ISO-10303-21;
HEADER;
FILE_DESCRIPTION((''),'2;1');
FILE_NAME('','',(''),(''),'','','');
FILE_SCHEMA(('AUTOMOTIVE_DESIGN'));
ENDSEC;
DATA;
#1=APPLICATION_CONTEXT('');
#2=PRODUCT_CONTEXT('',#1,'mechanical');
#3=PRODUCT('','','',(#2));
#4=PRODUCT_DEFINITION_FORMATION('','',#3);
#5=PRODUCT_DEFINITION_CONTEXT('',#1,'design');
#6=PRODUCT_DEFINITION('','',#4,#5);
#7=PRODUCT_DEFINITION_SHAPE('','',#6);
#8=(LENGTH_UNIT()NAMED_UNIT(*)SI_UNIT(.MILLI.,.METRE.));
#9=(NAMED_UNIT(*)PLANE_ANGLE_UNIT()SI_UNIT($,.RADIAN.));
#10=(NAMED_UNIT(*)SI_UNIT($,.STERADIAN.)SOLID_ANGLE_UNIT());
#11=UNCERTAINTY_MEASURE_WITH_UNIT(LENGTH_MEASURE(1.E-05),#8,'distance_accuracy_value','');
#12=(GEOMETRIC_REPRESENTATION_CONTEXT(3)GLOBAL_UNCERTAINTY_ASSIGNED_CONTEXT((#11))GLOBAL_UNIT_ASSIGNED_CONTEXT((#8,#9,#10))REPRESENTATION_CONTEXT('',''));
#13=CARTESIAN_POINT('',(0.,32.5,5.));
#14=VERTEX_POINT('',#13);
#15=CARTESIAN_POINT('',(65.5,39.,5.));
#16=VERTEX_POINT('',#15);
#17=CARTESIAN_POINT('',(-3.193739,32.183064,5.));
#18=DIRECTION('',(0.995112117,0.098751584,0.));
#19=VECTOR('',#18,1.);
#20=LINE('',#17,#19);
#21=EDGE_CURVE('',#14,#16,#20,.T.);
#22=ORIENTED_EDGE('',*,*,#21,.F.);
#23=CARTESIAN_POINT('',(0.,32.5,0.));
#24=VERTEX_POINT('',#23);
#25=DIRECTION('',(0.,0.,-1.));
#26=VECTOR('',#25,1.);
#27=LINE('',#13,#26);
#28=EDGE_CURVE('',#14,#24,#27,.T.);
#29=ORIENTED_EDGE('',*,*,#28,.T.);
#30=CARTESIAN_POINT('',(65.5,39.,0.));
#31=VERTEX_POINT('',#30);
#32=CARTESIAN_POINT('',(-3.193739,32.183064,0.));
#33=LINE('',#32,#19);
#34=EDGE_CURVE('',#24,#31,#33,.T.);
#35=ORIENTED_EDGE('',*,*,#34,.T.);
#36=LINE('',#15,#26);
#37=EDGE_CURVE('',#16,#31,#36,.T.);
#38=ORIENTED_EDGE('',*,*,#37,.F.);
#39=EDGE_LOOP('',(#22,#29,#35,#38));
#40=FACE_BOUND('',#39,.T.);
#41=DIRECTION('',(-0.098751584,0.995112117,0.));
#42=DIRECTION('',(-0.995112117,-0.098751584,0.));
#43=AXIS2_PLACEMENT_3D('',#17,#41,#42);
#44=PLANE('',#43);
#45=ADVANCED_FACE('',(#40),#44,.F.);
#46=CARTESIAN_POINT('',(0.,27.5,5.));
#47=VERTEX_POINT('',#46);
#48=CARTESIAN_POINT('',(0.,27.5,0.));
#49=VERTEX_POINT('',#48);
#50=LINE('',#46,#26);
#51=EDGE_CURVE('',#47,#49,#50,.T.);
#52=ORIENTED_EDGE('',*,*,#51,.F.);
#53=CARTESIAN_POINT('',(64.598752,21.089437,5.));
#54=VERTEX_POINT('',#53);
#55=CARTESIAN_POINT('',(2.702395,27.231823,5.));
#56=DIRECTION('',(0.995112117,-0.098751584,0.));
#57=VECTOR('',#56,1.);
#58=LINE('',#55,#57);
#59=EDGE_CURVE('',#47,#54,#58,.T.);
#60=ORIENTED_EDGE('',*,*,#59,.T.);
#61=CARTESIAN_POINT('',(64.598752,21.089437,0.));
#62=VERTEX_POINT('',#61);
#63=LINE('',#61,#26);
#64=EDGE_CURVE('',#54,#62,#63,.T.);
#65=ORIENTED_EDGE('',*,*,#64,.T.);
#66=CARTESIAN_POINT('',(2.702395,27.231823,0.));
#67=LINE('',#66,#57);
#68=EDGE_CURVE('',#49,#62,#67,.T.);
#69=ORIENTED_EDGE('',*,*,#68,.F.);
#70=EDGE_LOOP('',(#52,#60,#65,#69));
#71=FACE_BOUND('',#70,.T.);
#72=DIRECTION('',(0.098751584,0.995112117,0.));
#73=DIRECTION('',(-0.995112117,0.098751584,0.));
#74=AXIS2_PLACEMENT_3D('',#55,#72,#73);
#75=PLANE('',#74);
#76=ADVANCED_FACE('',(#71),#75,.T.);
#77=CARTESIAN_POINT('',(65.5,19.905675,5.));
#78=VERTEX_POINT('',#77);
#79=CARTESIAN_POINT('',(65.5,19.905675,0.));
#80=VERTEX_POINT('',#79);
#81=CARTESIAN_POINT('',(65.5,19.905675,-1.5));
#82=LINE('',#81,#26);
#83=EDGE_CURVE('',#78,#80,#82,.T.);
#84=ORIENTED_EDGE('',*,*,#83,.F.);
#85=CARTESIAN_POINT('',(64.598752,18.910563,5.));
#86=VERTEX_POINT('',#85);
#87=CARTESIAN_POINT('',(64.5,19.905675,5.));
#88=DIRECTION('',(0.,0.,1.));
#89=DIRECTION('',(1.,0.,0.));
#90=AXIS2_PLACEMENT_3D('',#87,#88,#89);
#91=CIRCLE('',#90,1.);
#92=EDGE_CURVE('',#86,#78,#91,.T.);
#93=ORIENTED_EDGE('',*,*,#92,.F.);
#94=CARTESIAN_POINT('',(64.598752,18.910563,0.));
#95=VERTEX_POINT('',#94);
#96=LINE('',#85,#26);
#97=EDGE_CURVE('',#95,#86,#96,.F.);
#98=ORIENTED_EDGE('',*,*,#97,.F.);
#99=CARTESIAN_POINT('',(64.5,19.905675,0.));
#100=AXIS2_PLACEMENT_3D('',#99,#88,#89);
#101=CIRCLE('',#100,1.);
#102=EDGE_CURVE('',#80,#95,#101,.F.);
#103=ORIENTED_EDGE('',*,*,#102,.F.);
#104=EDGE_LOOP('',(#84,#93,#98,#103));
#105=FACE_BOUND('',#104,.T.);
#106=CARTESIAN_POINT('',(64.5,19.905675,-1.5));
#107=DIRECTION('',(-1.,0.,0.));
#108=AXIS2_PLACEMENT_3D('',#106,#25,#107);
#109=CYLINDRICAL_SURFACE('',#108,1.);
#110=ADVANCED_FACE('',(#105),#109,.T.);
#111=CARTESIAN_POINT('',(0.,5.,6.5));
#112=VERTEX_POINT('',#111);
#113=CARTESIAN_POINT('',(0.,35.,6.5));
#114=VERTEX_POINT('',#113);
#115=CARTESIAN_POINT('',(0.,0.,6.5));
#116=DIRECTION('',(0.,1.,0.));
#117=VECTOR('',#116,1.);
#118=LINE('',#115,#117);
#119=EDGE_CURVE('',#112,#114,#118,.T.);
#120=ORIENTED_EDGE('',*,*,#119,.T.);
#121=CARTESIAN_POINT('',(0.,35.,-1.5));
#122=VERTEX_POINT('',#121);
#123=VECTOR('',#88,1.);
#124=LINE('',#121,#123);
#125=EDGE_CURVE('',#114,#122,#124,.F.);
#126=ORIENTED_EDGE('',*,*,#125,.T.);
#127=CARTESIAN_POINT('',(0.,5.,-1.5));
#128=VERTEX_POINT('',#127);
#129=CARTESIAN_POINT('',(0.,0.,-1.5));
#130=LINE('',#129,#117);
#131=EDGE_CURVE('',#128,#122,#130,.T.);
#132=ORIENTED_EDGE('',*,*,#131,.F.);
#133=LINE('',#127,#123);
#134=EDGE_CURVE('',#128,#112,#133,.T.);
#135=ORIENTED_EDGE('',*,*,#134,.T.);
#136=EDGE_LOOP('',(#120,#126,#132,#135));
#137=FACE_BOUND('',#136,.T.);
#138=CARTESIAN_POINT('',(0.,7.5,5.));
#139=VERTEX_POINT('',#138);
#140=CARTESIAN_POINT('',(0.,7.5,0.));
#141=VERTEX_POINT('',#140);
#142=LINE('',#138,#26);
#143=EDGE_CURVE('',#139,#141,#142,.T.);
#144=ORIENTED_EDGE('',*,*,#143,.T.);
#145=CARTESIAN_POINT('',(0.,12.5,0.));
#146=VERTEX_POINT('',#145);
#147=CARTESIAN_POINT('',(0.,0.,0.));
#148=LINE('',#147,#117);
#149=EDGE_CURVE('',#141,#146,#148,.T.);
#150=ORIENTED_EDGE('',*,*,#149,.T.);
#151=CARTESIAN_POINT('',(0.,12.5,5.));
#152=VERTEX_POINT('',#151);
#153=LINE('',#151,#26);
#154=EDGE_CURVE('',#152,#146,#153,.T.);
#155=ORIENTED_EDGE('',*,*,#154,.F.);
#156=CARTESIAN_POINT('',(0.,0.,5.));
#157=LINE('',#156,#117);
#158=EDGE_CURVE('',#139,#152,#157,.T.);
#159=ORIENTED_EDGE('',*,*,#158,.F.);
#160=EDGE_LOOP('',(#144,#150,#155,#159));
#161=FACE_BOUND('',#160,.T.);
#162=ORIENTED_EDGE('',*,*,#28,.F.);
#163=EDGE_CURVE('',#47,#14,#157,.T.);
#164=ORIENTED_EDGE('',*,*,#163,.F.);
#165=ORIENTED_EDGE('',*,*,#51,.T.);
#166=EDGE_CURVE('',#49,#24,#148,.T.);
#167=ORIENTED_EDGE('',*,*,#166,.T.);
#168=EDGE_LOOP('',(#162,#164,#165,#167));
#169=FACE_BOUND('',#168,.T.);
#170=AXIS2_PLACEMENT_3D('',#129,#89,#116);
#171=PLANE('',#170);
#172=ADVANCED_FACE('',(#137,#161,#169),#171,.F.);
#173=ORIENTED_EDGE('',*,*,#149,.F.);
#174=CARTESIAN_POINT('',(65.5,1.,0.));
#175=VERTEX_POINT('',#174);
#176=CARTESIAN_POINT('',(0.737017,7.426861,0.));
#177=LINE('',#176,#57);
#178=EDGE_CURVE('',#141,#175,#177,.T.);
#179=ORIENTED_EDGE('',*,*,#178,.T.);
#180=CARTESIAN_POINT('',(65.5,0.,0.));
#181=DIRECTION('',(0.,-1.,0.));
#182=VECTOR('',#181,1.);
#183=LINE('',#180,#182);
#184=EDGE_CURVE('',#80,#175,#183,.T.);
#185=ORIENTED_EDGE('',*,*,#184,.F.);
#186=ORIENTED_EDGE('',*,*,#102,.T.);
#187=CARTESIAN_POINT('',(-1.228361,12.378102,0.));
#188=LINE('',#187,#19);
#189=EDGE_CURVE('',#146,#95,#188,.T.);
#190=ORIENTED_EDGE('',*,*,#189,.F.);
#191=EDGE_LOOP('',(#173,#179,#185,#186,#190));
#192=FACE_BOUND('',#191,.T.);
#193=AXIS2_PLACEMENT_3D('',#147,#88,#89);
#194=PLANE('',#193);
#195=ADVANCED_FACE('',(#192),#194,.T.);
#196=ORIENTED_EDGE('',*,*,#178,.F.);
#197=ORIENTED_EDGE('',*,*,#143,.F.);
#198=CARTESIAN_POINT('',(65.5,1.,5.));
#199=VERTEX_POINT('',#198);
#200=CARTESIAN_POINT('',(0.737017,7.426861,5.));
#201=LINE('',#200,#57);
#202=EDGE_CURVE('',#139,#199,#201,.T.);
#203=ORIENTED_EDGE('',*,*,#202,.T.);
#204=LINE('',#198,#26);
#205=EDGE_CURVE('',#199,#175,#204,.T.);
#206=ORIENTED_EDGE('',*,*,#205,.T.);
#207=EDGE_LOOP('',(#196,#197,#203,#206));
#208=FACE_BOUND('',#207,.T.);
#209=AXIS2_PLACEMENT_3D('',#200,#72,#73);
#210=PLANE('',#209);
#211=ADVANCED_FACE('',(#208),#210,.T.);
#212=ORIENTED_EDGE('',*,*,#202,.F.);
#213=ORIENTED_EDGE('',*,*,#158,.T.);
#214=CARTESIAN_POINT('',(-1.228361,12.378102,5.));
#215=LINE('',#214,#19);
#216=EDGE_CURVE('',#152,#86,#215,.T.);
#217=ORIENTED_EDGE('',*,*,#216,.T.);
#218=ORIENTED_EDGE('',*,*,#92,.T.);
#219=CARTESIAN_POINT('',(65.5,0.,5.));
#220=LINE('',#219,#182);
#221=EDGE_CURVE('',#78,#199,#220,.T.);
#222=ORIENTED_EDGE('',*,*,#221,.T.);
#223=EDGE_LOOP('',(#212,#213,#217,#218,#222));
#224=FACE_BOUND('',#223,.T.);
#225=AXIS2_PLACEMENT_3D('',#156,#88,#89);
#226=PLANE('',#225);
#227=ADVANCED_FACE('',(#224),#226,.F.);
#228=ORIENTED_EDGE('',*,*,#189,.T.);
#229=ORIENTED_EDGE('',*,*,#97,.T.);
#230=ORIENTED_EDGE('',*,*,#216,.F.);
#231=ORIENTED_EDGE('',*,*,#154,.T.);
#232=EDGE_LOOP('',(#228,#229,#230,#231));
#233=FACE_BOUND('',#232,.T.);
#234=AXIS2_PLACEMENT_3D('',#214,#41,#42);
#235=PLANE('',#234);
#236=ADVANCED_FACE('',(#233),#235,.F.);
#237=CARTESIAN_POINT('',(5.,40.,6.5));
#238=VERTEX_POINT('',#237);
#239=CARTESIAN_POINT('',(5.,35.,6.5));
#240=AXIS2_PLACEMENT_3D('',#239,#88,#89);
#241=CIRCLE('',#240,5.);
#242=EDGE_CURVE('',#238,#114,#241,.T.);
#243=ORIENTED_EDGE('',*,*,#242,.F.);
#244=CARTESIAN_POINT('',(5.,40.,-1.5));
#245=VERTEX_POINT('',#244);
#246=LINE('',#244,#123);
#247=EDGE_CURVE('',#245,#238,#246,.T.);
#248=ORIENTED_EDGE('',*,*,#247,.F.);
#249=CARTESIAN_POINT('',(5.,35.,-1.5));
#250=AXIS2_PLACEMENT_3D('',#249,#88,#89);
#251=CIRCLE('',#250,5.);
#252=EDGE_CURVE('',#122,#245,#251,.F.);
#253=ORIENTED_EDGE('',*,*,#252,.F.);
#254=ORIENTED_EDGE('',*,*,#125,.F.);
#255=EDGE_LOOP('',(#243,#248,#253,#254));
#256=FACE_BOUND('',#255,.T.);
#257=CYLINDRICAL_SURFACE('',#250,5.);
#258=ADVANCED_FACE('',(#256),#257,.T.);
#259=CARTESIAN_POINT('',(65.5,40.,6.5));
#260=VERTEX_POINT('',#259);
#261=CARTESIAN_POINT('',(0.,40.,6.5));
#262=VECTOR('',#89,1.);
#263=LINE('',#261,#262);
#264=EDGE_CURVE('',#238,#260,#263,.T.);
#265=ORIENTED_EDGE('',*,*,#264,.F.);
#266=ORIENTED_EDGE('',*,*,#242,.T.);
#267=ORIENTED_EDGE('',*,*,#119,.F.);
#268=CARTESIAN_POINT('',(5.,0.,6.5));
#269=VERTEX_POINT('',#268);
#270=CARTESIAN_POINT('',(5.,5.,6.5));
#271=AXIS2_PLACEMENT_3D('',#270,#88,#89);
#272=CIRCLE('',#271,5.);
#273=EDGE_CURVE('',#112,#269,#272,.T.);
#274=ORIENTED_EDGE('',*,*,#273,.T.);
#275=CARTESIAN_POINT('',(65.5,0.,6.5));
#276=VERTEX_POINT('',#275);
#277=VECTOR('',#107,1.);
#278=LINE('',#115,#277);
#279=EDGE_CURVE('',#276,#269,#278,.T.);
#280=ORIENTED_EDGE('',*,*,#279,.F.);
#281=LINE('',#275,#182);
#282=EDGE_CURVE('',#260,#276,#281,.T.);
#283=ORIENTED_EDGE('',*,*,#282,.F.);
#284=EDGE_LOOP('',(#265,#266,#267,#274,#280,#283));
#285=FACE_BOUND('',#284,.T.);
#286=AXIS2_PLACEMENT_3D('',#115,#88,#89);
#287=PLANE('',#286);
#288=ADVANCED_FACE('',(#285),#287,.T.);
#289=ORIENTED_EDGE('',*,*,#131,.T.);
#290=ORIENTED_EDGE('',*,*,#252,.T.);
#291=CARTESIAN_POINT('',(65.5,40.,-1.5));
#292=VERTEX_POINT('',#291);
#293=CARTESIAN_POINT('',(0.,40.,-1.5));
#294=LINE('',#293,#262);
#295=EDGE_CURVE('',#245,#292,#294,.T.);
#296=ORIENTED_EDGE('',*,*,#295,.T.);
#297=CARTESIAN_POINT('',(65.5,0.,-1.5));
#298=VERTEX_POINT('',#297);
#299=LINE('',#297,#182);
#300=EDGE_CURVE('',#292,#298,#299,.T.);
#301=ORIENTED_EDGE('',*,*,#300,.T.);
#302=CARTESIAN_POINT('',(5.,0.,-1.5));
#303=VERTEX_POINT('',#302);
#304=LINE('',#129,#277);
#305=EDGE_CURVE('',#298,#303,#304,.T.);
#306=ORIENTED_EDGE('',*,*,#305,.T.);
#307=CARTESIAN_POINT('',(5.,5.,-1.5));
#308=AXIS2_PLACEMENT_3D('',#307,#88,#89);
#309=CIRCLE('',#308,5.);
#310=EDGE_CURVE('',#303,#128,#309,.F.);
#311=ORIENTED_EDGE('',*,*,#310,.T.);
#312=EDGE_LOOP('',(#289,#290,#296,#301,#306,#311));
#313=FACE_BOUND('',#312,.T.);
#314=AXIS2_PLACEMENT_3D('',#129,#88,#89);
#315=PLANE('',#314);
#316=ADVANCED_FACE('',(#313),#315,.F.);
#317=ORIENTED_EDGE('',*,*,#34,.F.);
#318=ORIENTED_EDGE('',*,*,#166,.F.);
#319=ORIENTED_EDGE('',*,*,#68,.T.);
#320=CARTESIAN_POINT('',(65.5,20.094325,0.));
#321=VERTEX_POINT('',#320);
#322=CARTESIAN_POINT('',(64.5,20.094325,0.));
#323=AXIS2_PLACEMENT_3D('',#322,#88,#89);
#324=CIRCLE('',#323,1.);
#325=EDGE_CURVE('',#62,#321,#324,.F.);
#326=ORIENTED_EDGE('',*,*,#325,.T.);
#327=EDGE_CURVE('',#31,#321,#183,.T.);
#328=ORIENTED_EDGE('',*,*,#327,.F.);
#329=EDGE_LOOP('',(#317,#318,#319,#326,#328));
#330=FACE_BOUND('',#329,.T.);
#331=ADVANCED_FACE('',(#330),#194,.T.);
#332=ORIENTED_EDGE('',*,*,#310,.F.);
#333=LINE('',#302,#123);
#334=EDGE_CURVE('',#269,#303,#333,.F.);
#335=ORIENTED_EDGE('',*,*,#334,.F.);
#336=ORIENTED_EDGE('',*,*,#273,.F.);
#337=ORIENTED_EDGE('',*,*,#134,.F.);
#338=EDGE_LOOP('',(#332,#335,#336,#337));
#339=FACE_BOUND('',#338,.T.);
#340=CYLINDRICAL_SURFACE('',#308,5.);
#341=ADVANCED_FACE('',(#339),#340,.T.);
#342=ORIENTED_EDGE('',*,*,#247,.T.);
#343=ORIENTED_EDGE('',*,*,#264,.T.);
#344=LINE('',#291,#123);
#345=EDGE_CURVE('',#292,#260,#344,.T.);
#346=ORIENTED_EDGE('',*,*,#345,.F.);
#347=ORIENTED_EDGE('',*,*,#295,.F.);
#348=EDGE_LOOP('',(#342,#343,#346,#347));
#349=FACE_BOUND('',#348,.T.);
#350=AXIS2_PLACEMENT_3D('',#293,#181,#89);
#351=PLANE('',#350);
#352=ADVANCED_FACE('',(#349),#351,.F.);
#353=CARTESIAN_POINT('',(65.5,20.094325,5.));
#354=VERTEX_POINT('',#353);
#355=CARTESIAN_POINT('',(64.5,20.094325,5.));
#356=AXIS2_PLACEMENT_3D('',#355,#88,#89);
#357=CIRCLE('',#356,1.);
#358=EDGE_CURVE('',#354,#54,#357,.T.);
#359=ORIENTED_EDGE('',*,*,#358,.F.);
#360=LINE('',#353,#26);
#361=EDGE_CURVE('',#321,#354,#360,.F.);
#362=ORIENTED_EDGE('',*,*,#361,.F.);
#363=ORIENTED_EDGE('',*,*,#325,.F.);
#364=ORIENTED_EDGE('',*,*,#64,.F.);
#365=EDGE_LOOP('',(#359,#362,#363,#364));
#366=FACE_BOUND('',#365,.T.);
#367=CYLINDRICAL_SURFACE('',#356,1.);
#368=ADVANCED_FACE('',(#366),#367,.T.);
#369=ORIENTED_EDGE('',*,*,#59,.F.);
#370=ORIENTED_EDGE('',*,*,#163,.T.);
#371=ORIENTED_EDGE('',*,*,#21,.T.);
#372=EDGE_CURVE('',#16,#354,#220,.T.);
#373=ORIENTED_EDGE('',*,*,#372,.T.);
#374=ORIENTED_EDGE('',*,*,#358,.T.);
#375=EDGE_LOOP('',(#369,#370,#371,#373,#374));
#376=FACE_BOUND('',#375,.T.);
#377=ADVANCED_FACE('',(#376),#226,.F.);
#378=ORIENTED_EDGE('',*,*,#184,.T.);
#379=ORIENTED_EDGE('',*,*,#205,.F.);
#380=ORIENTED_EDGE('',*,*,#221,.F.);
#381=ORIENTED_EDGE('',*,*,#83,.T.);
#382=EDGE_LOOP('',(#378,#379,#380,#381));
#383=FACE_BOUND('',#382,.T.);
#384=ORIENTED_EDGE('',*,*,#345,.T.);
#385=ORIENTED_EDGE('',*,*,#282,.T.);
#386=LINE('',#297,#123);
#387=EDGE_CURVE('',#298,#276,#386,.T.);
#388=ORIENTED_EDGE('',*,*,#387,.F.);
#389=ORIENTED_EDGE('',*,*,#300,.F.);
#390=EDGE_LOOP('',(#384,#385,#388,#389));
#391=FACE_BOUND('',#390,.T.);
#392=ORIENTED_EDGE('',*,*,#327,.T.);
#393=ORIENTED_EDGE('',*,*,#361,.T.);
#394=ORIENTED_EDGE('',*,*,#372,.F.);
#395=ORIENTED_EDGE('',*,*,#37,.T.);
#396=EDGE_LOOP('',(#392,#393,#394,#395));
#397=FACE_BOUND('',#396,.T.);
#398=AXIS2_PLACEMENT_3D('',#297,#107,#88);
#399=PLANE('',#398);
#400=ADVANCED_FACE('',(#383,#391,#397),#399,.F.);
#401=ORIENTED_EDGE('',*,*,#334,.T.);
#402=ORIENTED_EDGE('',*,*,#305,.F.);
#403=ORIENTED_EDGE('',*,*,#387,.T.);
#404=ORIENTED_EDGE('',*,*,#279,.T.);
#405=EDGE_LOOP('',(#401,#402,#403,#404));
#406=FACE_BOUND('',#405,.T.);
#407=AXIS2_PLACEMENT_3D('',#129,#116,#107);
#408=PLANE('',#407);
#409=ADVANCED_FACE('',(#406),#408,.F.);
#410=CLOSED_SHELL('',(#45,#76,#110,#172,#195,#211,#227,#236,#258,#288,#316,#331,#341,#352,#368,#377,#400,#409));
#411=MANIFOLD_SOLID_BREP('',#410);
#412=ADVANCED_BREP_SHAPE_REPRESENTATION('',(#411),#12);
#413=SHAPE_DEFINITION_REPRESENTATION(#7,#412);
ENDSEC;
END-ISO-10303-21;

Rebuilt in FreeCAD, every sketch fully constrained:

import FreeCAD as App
import Part
import Sketcher
from FreeCAD import Vector
Q = App.Units.Quantity


def edges_at(feature, points):
    """Names of the edges that pass closest to the given points."""
    edges = feature.Shape.Edges
    near = lambda p: min(range(len(edges)), key=lambda i: edges[i].distToShape(Part.Vertex(*p))[0])
    return sorted({f"Edge{near(p) + 1}" for p in points})


def add_polygon(sketch, points):
    """Adds a closed chain of lines whose ends are joined by coincident constraints."""
    first, n = sketch.GeometryCount, len(points)
    for a, b in zip(points, points[1:] + points[:1]):
        sketch.addGeometry(Part.LineSegment(App.Vector(*a, 0), App.Vector(*b, 0)), False)
    for i in range(n):
        sketch.addConstraint(Sketcher.Constraint("Coincident", first + i, 2, first + (i + 1) % n, 1))

doc = App.newDocument("Part")
params = doc.addObject("Spreadsheet::Sheet", "Params")
for row, (alias, value) in enumerate([
    ("sketch1_height", "40 mm"),
    ("sketch1_width", "65.5 mm"),
    ("pad1_length", "1.5 mm"),
    ("sketch2_height", "1 mm"),
    ("sketch2_height2", "15 mm"),
    ("sketch2_height3", "2 mm"),
    ("sketch2_width", "65.5 mm"),
    ("pad2_length", "5 mm"),
    ("sketch3_height", "40 mm"),
    ("sketch3_width", "65.5 mm"),
    ("pad3_length", "1.5 mm"),
    ("fillet_radius", "5 mm"),
    ("fillet2_radius", "1 mm"),
], start=1):
    params.set(f"A{row}", alias)
    params.set(f"B{row}", "=" + value)
    params.setAlias(f"B{row}", alias)

body = doc.addObject("PartDesign::Body", "Body")

# Sketch on XY plane
sketch1 = body.newObject("Sketcher::SketchObject", "Sketch")
sketch1.AttachmentSupport = (doc.getObject("XY_Plane"), [""])
sketch1.MapMode = "FlatFace"
add_polygon(sketch1, [(0, 40), (0, 0), (66, 0), (66, 40)])  # lines 0-3
sketch1.addConstraint([
    Sketcher.Constraint("Vertical", 0),
    Sketcher.Constraint("Horizontal", 1),
    Sketcher.Constraint("Vertical", 2),
    Sketcher.Constraint("Horizontal", 3),
    Sketcher.Constraint("Coincident", 0, 2, -1, 1),
    Sketcher.Constraint("DistanceY", 0, 2, 0, 1, Q("40 mm")),
    Sketcher.Constraint("DistanceX", 1, 1, 1, 2, Q("65.5 mm")),
])
sketch1.setExpression("Constraints[9]", "Params.sketch1_height")
sketch1.setExpression("Constraints[10]", "Params.sketch1_width")
pad1 = body.newObject("PartDesign::Pad", "Pad")
pad1.Profile = sketch1
pad1.setExpression("Length", "Params.pad1_length")
pad1.Reversed = True

# Sketch on XY plane
sketch2 = body.newObject("Sketcher::SketchObject", "Sketch001")
sketch2.AttachmentSupport = (doc.getObject("XY_Plane"), [""])
sketch2.MapMode = "FlatFace"
add_polygon(sketch2, [(0, 40), (0, 32.5), (65.5, 39), (65.5, 40)])  # lines 0-3
add_polygon(sketch2, [(0, 27.5), (0, 12.5), (65.5, 19), (65.5, 21)])  # lines 4-7
add_polygon(sketch2, [(0, 7.5), (0, 0), (65.5, 0), (65.5, 1)])  # lines 8-11
sketch2.addConstraint([
    Sketcher.Constraint("Vertical", 0),
    Sketcher.Constraint("Vertical", 2),
    Sketcher.Constraint("Horizontal", 3),
    Sketcher.Constraint("Vertical", 4),
    Sketcher.Constraint("Vertical", 6),
    Sketcher.Constraint("Vertical", 8),
    Sketcher.Constraint("Horizontal", 9),
    Sketcher.Constraint("Vertical", 10),
    Sketcher.Constraint("Coincident", 8, 2, -1, 1),
    Sketcher.Constraint("PointOnObject", 0, 2, -2),
    Sketcher.Constraint("PointOnObject", 4, 2, -2),
    Sketcher.Constraint("Parallel", 1, 5),
    Sketcher.Constraint("Parallel", 7, 11),
    Sketcher.Constraint("Vertical", 2, 2, 5, 2),
    Sketcher.Constraint("Vertical", 6, 2, 9, 2),
    Sketcher.Constraint("Equal", 0, 8),
    Sketcher.Constraint("Equal", 2, 10),
    Sketcher.Constraint("DistanceY", 2, 1, 2, 2, Q("1 mm")),
    Sketcher.Constraint("DistanceY", 4, 2, 4, 1, Q("15 mm")),
    Sketcher.Constraint("DistanceY", 6, 1, 6, 2, Q("2 mm")),
    Sketcher.Constraint("DistanceX", 3, 2, 3, 1, Q("65.5 mm")),
    Sketcher.Constraint("DistanceY", -1, 1, 1, 2, Q("39 mm")),
    Sketcher.Constraint("DistanceY", -1, 1, 5, 2, Q("19 mm")),
])
sketch2.setExpression("Constraints[29]", "Params.sketch2_height")
sketch2.setExpression("Constraints[30]", "Params.sketch2_height2")
sketch2.setExpression("Constraints[31]", "Params.sketch2_height3")
sketch2.setExpression("Constraints[32]", "Params.sketch2_width")
pad2 = body.newObject("PartDesign::Pad", "Pad001")
pad2.Profile = sketch2
pad2.setExpression("Length", "Params.pad2_length")

# Sketch on XY plane
sketch3 = body.newObject("Sketcher::SketchObject", "Sketch002")
sketch3.AttachmentSupport = (doc.getObject("XY_Plane"), [""])
sketch3.MapMode = "FlatFace"
sketch3.AttachmentOffset = App.Placement(Vector(0, 0, 5), App.Rotation())
add_polygon(sketch3, [(0, 40), (0, 0), (66, 0), (66, 40)])  # lines 0-3
sketch3.addConstraint([
    Sketcher.Constraint("Vertical", 0),
    Sketcher.Constraint("Horizontal", 1),
    Sketcher.Constraint("Vertical", 2),
    Sketcher.Constraint("Horizontal", 3),
    Sketcher.Constraint("Coincident", 0, 2, -1, 1),
    Sketcher.Constraint("DistanceY", 0, 2, 0, 1, Q("40 mm")),
    Sketcher.Constraint("DistanceX", 1, 1, 1, 2, Q("65.5 mm")),
])
sketch3.setExpression("Constraints[9]", "Params.sketch3_height")
sketch3.setExpression("Constraints[10]", "Params.sketch3_width")
pad3 = body.newObject("PartDesign::Pad", "Pad002")
pad3.Profile = sketch3
pad3.setExpression("Length", "Params.pad3_length")
doc.recompute()

fillet = body.newObject("PartDesign::Fillet", "Fillet")
fillet.Base = (pad3, edges_at(pad3, [(0, 40, 2.5), (0, 0, 2.5)]))
fillet.setExpression("Radius", "Params.fillet_radius")
doc.recompute()

fillet2 = body.newObject("PartDesign::Fillet", "Fillet001")
fillet2.Base = (fillet, edges_at(fillet, [(65.5, 21, 2.5), (65.5, 19, 2.5)]))
fillet2.setExpression("Radius", "Params.fillet2_radius")

doc.recompute()
